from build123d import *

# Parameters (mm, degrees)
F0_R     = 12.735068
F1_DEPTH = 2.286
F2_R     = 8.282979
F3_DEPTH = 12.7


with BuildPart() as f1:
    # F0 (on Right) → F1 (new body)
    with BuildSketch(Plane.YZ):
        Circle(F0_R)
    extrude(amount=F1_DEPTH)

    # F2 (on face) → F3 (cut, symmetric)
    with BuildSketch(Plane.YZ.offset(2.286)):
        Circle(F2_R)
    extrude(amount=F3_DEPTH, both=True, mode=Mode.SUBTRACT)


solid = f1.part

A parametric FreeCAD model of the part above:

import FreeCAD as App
import Part
import Sketcher

V = App.Vector
Q = App.Units.Quantity

doc = App.newDocument("Part")
body = doc.addObject("PartDesign::Body", "Body")

# Sketch on YZ plane
sketch1 = doc.addObject("Sketcher::SketchObject", "Sketch")
body.addObject(sketch1)
sketch1.AttachmentSupport = (doc.YZ_Plane, [""])
sketch1.MapMode = "FlatFace"
sketch1.addGeometry(Part.Circle(V(0, 0, 0), V(0, 0, 1), 12.735068), False)
sketch1.addConstraint(Sketcher.Constraint("Coincident", 0, 3, -1, 1))
sketch1.addConstraint(Sketcher.Constraint("Diameter", 0, 25.470136))
pad1 = doc.addObject("PartDesign::Pad", "Pad")
body.addObject(pad1)
pad1.Profile = sketch1
pad1.Length = Q("0.09 in")

# Sketch on YZ plane
sketch2 = doc.addObject("Sketcher::SketchObject", "Sketch001")
body.addObject(sketch2)
sketch2.AttachmentSupport = (doc.YZ_Plane, [""])
sketch2.MapMode = "FlatFace"
sketch2.AttachmentOffset = App.Placement(V(0, 0, 0.09 * 25.4), App.Rotation())
sketch2.addGeometry(Part.Circle(V(0, 0, 0), V(0, 0, 1), 8.282979), False)
sketch2.addConstraint(Sketcher.Constraint("Coincident", 0, 3, -1, 1))
sketch2.addConstraint(Sketcher.Constraint("Diameter", 0, 16.565958))
pocket1 = doc.addObject("PartDesign::Pocket", "Pocket")
body.addObject(pocket1)
pocket1.Profile = sketch2
pocket1.Length = Q("1 in")
pocket1.Midplane = True

doc.recompute()
